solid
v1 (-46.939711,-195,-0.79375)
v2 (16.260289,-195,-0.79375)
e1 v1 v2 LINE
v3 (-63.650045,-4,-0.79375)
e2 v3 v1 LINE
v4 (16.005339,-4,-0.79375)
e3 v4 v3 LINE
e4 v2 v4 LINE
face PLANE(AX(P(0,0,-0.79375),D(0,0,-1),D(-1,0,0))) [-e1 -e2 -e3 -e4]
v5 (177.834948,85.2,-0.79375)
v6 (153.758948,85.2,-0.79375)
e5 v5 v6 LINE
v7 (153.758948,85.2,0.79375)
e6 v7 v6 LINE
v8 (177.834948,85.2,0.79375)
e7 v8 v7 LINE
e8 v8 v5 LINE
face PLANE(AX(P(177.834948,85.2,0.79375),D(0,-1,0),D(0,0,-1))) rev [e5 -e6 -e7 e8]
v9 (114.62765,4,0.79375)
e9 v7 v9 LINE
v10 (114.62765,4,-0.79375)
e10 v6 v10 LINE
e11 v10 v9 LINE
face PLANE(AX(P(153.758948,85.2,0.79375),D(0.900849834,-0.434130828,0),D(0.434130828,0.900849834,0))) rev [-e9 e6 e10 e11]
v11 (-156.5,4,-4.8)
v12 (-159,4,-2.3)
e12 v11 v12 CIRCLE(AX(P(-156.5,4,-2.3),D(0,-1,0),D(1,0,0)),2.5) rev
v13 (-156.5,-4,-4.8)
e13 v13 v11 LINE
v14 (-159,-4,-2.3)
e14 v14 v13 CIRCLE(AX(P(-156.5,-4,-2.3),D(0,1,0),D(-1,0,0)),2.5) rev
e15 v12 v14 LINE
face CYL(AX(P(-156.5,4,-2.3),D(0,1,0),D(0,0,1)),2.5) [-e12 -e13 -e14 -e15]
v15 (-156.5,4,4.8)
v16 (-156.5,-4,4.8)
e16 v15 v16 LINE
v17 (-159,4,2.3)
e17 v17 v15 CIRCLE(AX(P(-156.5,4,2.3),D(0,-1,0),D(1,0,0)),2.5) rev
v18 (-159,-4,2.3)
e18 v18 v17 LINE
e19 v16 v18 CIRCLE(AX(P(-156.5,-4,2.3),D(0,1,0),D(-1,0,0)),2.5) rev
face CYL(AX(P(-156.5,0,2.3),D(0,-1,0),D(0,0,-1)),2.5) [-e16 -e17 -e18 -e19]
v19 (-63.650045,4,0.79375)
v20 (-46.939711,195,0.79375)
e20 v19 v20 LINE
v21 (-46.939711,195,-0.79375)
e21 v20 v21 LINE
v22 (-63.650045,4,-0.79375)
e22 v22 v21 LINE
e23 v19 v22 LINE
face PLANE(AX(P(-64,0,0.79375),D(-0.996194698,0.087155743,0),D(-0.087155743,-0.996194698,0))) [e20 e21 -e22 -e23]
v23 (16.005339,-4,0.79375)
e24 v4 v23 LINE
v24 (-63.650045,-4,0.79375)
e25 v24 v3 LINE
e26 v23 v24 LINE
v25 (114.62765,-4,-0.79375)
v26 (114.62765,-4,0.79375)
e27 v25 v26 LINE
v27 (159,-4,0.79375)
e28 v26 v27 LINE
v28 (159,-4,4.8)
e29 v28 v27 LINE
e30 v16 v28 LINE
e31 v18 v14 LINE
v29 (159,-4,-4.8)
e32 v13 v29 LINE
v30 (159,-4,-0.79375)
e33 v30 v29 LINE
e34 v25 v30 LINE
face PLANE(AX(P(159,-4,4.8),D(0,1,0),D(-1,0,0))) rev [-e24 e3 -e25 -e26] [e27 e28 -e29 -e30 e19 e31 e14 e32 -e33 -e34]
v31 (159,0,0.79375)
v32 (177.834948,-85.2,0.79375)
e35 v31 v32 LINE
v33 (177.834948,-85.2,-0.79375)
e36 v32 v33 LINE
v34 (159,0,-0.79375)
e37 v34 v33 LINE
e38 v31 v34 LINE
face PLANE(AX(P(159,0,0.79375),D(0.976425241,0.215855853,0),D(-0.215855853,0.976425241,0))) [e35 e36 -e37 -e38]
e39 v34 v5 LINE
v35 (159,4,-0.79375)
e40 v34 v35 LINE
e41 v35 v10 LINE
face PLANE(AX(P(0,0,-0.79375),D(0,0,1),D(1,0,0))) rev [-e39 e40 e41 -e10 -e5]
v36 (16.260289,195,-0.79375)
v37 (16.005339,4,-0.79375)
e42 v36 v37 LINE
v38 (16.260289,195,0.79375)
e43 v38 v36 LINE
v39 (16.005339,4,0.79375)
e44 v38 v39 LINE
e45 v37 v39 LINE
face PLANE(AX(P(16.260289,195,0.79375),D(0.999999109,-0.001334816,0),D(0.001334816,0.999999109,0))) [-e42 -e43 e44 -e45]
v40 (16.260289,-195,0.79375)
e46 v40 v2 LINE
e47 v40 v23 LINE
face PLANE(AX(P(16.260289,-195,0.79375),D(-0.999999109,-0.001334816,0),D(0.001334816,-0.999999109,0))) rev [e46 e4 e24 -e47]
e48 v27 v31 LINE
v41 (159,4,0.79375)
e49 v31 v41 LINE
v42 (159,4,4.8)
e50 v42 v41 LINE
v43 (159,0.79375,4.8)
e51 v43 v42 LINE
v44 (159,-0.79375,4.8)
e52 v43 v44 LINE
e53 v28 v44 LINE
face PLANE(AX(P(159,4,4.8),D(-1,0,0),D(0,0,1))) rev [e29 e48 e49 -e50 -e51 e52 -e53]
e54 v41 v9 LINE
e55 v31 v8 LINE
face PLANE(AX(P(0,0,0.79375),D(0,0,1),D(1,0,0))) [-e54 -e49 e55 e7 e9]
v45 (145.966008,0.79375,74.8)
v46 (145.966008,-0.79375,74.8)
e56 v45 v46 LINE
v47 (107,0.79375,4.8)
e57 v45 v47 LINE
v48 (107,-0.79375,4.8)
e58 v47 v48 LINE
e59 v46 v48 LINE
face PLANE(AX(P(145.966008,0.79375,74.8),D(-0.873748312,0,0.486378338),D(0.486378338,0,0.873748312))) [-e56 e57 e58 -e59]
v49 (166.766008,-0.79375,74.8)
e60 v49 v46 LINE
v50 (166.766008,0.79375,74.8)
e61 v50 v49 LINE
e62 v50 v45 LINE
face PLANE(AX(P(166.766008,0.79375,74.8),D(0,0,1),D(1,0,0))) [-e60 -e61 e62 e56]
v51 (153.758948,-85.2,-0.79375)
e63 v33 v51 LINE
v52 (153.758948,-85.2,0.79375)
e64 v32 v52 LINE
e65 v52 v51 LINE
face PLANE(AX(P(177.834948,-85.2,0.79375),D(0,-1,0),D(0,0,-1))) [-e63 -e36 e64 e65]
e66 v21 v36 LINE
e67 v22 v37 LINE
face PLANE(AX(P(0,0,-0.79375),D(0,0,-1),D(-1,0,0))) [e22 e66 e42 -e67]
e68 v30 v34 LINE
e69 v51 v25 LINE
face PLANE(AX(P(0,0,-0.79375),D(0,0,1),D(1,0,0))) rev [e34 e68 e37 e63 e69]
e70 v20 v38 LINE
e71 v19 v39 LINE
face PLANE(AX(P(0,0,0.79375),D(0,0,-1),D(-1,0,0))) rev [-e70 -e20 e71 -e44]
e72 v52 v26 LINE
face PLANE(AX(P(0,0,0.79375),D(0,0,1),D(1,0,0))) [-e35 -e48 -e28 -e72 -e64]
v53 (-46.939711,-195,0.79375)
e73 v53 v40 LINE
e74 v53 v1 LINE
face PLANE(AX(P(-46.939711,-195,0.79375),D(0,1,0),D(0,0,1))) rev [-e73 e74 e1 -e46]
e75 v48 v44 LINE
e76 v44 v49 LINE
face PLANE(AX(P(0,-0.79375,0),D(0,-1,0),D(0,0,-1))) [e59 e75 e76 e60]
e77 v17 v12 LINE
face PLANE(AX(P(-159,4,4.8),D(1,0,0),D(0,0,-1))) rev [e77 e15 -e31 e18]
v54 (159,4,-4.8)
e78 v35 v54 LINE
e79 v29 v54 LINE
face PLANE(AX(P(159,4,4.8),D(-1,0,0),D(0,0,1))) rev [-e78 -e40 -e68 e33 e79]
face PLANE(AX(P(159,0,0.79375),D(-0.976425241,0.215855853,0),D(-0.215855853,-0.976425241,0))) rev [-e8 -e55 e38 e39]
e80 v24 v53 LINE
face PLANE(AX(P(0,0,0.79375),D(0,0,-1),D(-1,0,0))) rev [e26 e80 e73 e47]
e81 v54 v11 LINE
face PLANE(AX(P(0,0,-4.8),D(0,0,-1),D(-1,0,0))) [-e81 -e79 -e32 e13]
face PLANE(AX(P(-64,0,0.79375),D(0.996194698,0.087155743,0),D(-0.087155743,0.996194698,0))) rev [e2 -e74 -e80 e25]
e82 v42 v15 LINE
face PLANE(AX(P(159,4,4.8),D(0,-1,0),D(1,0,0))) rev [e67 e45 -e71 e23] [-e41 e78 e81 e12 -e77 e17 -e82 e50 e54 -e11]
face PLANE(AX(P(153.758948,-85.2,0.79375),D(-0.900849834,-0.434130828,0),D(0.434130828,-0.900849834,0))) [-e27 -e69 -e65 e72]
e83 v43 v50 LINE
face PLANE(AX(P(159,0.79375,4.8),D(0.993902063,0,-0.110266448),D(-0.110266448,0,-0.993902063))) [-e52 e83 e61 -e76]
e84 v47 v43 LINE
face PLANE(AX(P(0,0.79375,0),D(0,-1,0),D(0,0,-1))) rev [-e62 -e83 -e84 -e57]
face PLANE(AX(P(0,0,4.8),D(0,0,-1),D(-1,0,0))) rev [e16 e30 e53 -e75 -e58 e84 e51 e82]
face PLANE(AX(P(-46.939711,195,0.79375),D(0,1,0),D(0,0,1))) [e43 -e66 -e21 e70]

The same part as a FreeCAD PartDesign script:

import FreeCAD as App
import Part
import Sketcher

V = App.Vector
Q = App.Units.Quantity


def edges_at(feature, points):
    """Names of the edges that pass closest to the given points."""
    edges = feature.Shape.Edges
    near = lambda p: min(range(len(edges)), key=lambda i: edges[i].distToShape(Part.Vertex(*p))[0])
    return sorted({f"Edge{near(p) + 1}" for p in points})


def add_polygon(sketch, points):
    """Adds a closed chain of lines whose ends are joined by coincident constraints."""
    first, n = sketch.GeometryCount, len(points)
    for a, b in zip(points, points[1:] + points[:1]):
        sketch.addGeometry(Part.LineSegment(App.Vector(*a, 0), App.Vector(*b, 0)), False)
    for i in range(n):
        sketch.addConstraint(Sketcher.Constraint("Coincident", first + i, 2, first + (i + 1) % n, 1))

doc = App.newDocument("Part")
body = doc.addObject("PartDesign::Body", "Body")

# Sketch on XY plane
sketch1 = doc.addObject("Sketcher::SketchObject", "Sketch")
body.addObject(sketch1)
sketch1.AttachmentSupport = (doc.XY_Plane, [""])
sketch1.MapMode = "FlatFace"
add_polygon(sketch1, [(-159, 4), (-159, -4), (159, -4), (159, 4)])  # lines 0-3
sketch1.addConstraint(Sketcher.Constraint("Vertical", 0))
sketch1.addConstraint(Sketcher.Constraint("Horizontal", 1))
sketch1.addConstraint(Sketcher.Constraint("Vertical", 2))
sketch1.addConstraint(Sketcher.Constraint("Horizontal", 3))
sketch1.addConstraint(Sketcher.Constraint("Symmetric", 0, 2, 2, 2, -1, 1))
sketch1.addConstraint(Sketcher.Constraint("DistanceX", 1, 1, 1, 2, 318.0))
sketch1.addConstraint(Sketcher.Constraint("DistanceY", 0, 2, 0, 1, 8.0))
pad1 = doc.addObject("PartDesign::Pad", "Pad")
body.addObject(pad1)
pad1.Profile = sketch1
pad1.Length = 9.6
pad1.Midplane = True

# Sketch on XY plane
sketch2 = doc.addObject("Sketcher::SketchObject", "Sketch001")
body.addObject(sketch2)
sketch2.AttachmentSupport = (doc.XY_Plane, [""])
sketch2.MapMode = "FlatFace"
add_polygon(sketch2, [(-47, 195), (-64, 0), (16, 0), (16, 195)])  # lines 0-3
sketch2.addConstraint(Sketcher.Constraint("Horizontal", 1))
sketch2.addConstraint(Sketcher.Constraint("Horizontal", 3))
sketch2.addConstraint(Sketcher.Constraint("PointOnObject", 0, 2, -1))
sketch2.addConstraint(Sketcher.Constraint("DistanceX", 1, 1, 1, 2, 80.0))
sketch2.addConstraint(Sketcher.Constraint("Angle", 0, Q("-95 deg")))
sketch2.addConstraint(Sketcher.Constraint("DistanceX", 3, 2, 3, 1, 63.2))
sketch2.addConstraint(Sketcher.Constraint("DistanceX", 0, 2, -1, 1, 64.0))
sketch2.addConstraint(Sketcher.Constraint("DistanceY", -1, 1, 2, 2, 195.0))
pad2 = doc.addObject("PartDesign::Pad", "Pad001")
body.addObject(pad2)
pad2.Profile = sketch2
pad2.Length = 1.5875
pad2.Midplane = True
doc.recompute()

mirrored = doc.addObject("PartDesign::Mirrored", "Mirrored")
body.addObject(mirrored)
mirrored.Originals = [pad2]
mirrored.MirrorPlane = (doc.XZ_Plane, [""])
body.Tip = mirrored

# Sketch on XZ plane
sketch3 = doc.addObject("Sketcher::SketchObject", "Sketch002")
body.addObject(sketch3)
sketch3.AttachmentSupport = (doc.XZ_Plane, [""])
sketch3.MapMode = "FlatFace"
add_polygon(sketch3, [(167, 75), (159, 5), (107, 5), (146, 75)])  # lines 0-3
sketch3.addConstraint(Sketcher.Constraint("Horizontal", 1))
sketch3.addConstraint(Sketcher.Constraint("Horizontal", 3))
sketch3.addConstraint(Sketcher.Constraint("DistanceX", 1, 2, 1, 1, 52.0))
sketch3.addConstraint(Sketcher.Constraint("DistanceX", 3, 1, 3, 2, 20.8))
sketch3.addConstraint(Sketcher.Constraint("DistanceX", -1, 1, 0, 2, 159.0))
sketch3.addConstraint(Sketcher.Constraint("DistanceY", 0, 2, 2, 2, 70.0))
sketch3.addConstraint(Sketcher.Constraint("DistanceY", -1, 1, 0, 2, 4.8))
sketch3.addConstraint(Sketcher.Constraint("Distance", 0, 70.429475))
pad3 = doc.addObject("PartDesign::Pad", "Pad002")
body.addObject(pad3)
pad3.Profile = sketch3
pad3.Length = 1.5875
pad3.Midplane = True

# Sketch on XY plane
sketch4 = doc.addObject("Sketcher::SketchObject", "Sketch003")
body.addObject(sketch4)
sketch4.AttachmentSupport = (doc.XY_Plane, [""])
sketch4.MapMode = "FlatFace"
add_polygon(sketch4, [(159, 0), (178, 85), (154, 85), (113, 0)])  # lines 0-3
sketch4.addConstraint(Sketcher.Constraint("Horizontal", 1))
sketch4.addConstraint(Sketcher.Constraint("Horizontal", 3))
sketch4.addConstraint(Sketcher.Constraint("PointOnObject", 2, 2, -1))
sketch4.addConstraint(Sketcher.Constraint("DistanceX", 3, 1, 3, 2, 46.3))
sketch4.addConstraint(Sketcher.Constraint("DistanceX", -1, 1, 3, 2, 159.0))
sketch4.addConstraint(Sketcher.Constraint("DistanceY", -1, 1, 0, 2, 85.2))
sketch4.addConstraint(Sketcher.Constraint("Angle", 2, Q("-115.73 deg")))
sketch4.addConstraint(Sketcher.Constraint("DistanceX", 1, 2, 1, 1, 24.076))
pad4 = doc.addObject("PartDesign::Pad", "Pad003")
body.addObject(pad4)
pad4.Profile = sketch4
pad4.Length = 1.5875
pad4.Midplane = True
doc.recompute()

mirrored2 = doc.addObject("PartDesign::Mirrored", "Mirrored001")
body.addObject(mirrored2)
mirrored2.Originals = [pad4]
mirrored2.MirrorPlane = (doc.XZ_Plane, [""])
body.Tip = mirrored2
doc.recompute()

fillet = doc.addObject("PartDesign::Fillet", "Fillet")
body.addObject(fillet)
fillet.Base = (mirrored2, edges_at(mirrored2, [(-159, 0, 4.8), (-159, 0, -4.8)]))
fillet.Radius = 2.5

doc.recompute()
